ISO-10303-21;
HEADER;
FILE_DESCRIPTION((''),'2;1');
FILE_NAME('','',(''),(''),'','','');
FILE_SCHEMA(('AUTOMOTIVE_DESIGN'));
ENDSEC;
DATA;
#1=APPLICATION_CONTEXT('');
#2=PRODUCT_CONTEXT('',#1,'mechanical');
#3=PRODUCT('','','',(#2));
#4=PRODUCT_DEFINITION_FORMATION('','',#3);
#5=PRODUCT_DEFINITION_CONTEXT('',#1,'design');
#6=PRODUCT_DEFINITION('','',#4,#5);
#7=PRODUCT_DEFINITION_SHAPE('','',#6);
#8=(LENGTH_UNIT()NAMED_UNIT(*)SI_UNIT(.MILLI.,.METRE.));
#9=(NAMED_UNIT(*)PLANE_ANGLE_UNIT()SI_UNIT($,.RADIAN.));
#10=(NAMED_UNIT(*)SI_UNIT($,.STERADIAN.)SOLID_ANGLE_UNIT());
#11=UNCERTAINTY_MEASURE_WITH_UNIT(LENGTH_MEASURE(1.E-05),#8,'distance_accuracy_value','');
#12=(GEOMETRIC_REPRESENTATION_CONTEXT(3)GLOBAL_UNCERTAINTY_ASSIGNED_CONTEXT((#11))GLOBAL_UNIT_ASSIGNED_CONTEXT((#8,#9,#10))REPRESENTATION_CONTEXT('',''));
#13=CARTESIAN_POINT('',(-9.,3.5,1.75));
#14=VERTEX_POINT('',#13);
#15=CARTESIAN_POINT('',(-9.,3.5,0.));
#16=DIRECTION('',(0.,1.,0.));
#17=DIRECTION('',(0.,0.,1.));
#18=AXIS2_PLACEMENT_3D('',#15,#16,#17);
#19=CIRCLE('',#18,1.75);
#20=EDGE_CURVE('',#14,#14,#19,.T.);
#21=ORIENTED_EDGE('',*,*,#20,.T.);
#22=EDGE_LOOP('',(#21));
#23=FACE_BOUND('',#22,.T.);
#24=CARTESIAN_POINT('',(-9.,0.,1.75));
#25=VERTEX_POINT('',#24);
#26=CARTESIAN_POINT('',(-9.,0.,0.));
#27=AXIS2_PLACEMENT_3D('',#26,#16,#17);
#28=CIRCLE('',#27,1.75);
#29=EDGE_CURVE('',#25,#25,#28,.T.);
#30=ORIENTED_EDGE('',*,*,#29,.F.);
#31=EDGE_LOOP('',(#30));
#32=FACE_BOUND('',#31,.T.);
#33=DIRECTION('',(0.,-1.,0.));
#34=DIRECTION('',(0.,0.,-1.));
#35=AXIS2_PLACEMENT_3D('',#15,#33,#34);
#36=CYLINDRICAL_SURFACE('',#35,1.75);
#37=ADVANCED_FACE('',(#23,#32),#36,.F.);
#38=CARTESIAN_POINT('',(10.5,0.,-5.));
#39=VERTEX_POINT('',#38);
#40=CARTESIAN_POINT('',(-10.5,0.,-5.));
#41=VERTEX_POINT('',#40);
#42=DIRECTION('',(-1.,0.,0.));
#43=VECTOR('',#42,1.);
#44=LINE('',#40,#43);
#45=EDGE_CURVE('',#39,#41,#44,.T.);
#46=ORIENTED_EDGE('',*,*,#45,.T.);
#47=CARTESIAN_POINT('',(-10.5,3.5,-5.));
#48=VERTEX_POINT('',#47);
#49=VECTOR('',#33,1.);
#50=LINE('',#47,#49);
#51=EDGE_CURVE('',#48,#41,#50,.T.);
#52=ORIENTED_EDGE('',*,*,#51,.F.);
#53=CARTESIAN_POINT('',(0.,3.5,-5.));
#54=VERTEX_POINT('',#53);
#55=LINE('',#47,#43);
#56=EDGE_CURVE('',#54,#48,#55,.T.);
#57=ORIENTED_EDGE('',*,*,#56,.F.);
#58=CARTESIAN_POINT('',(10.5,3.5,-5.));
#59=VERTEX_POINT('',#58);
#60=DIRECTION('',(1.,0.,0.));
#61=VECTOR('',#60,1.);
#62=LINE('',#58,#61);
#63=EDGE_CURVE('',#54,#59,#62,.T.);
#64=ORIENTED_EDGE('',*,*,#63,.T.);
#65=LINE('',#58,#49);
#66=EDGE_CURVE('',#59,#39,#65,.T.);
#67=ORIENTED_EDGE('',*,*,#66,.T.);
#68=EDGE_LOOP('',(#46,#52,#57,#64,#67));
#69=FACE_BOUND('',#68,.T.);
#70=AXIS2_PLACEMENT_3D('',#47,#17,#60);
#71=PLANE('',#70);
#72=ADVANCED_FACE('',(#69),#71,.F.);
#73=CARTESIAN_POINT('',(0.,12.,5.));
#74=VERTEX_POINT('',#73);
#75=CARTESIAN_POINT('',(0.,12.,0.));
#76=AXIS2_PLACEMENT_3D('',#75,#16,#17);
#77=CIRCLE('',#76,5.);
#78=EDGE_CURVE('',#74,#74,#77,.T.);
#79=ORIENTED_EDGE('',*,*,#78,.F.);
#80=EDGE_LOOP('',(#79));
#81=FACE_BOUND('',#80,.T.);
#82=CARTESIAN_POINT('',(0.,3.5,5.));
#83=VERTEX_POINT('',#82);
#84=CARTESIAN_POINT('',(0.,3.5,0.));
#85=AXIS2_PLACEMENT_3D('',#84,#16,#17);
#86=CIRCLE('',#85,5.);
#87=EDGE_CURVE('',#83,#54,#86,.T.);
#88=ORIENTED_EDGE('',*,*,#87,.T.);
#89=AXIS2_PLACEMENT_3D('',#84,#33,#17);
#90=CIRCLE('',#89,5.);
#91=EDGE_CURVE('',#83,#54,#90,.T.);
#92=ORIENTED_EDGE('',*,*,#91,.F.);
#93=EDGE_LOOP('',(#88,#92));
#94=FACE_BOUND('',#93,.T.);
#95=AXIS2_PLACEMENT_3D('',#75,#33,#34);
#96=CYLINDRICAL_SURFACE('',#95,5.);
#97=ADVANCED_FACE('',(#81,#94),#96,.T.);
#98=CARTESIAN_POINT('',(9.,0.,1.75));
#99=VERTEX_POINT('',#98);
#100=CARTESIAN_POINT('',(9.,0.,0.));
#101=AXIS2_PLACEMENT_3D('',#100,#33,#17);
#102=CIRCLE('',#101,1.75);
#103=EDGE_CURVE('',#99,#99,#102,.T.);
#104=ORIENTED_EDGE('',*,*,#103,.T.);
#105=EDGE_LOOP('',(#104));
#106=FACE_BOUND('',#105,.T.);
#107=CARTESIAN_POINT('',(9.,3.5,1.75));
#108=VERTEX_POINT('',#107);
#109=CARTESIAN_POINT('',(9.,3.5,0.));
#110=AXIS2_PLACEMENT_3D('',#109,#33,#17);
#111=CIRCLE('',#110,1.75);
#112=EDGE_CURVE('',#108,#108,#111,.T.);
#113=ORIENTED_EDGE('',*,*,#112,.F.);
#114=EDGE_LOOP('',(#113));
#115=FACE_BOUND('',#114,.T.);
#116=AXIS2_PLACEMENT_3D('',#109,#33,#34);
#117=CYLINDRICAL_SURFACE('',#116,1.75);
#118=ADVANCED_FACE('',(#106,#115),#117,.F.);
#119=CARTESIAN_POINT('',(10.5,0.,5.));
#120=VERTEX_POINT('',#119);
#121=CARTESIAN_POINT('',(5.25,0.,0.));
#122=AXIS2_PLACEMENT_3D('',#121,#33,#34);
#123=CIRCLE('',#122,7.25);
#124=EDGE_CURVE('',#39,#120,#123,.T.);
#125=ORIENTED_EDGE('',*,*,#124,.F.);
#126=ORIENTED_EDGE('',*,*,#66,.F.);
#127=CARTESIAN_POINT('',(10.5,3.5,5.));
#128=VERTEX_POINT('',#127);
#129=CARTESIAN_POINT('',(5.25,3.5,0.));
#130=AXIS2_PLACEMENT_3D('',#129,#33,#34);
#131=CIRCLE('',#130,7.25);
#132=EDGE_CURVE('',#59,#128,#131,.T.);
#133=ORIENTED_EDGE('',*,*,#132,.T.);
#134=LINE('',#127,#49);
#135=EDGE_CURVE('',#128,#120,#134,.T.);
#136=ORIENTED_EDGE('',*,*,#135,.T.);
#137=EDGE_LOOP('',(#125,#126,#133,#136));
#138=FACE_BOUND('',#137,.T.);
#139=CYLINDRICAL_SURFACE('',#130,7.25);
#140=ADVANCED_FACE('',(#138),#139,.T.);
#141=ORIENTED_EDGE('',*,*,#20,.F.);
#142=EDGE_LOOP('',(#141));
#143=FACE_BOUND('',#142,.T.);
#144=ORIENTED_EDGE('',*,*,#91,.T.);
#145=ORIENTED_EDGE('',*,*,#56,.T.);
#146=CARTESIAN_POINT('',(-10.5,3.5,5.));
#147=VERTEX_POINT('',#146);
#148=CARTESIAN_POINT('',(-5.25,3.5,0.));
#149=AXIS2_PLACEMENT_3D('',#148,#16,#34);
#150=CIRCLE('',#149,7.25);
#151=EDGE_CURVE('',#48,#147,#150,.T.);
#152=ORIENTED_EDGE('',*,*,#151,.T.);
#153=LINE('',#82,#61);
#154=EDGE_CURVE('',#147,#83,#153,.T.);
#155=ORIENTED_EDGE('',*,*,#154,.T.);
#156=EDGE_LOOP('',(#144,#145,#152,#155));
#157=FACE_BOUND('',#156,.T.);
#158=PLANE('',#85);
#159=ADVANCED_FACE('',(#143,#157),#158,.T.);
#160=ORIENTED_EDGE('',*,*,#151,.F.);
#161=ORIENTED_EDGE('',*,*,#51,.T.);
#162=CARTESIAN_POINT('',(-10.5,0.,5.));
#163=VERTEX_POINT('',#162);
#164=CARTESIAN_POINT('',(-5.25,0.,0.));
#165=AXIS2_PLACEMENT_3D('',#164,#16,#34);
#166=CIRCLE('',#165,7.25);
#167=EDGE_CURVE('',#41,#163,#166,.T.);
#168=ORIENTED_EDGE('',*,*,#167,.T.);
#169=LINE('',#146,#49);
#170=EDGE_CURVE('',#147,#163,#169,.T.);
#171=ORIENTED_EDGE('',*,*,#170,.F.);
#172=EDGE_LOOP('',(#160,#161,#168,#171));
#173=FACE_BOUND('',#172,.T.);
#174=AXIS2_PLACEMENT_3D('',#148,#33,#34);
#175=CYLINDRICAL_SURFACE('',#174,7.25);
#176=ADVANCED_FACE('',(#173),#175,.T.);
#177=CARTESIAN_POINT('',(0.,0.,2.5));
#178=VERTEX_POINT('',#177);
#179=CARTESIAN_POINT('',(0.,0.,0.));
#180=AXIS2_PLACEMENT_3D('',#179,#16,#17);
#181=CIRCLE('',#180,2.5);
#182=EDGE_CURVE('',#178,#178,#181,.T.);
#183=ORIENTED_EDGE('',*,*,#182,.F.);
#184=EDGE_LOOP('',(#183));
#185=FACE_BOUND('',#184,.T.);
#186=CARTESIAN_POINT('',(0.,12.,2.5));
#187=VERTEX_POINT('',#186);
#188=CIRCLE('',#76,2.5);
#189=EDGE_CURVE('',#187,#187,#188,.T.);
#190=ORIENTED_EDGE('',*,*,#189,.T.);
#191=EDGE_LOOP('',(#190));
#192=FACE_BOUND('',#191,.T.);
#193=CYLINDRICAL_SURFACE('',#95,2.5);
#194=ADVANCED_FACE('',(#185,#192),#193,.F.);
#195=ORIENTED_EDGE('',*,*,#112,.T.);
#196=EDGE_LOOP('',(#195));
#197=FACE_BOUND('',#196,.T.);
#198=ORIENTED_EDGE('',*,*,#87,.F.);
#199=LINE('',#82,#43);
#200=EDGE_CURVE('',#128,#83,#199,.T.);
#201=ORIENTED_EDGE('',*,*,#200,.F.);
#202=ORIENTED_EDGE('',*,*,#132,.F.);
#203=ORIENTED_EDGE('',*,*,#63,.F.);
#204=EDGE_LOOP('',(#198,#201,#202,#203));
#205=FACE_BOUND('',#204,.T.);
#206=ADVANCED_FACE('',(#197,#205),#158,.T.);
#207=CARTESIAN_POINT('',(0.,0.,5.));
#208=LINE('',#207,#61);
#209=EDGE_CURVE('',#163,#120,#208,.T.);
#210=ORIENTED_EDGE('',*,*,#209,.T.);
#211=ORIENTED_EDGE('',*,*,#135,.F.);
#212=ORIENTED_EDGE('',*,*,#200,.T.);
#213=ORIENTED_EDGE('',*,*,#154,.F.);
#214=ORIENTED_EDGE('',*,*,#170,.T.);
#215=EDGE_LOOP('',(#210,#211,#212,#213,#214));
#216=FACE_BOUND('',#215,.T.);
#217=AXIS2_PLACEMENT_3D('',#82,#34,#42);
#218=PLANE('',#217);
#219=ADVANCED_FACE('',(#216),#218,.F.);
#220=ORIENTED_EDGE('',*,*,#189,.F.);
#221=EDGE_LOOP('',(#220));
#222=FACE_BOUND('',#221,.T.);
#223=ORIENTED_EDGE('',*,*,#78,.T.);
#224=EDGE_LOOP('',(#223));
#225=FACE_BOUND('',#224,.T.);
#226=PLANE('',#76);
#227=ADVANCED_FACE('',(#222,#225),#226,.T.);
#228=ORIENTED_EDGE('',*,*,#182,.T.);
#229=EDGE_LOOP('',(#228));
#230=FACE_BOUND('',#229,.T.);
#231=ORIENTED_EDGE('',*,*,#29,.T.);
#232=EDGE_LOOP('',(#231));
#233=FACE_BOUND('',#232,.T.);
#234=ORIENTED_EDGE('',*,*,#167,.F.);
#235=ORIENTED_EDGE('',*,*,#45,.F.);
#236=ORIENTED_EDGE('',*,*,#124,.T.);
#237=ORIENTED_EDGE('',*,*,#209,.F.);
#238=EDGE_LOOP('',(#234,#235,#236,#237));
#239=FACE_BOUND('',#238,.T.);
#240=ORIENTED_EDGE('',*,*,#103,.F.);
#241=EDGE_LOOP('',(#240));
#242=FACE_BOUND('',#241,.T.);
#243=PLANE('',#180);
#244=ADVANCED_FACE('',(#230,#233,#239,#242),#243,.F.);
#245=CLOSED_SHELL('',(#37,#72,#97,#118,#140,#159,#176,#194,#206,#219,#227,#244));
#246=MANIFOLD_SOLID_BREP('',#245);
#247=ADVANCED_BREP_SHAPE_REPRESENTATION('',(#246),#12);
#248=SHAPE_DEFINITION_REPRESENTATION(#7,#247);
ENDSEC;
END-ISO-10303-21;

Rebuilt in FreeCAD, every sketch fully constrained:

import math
import FreeCAD as App
import Part
import Sketcher
Q = App.Units.Quantity

doc = App.newDocument("Part")
body = doc.addObject("PartDesign::Body", "Body")

# Sketch on XZ plane
sketch1 = doc.addObject("Sketcher::SketchObject", "Sketch")
body.addObject(sketch1)
sketch1.AttachmentSupport = (doc.XZ_Plane, [""])
sketch1.MapMode = "FlatFace"
sketch1.addGeometry([
    Part.Circle(App.Vector(0, 0, 0), App.Vector(0, 0, 1), 5),
    Part.Circle(App.Vector(0, 0, 0), App.Vector(0, 0, 1), 2.5),
], False)
sketch1.addConstraint([
    Sketcher.Constraint("Coincident", 0, 3, -1, 1),
    Sketcher.Constraint("Coincident", 1, 3, -1, 1),
    Sketcher.Constraint("Diameter", 0, Q("10 mm")),
    Sketcher.Constraint("Diameter", 1, Q("5 mm")),
])
pad1 = doc.addObject("PartDesign::Pad", "Pad")
body.addObject(pad1)
pad1.Profile = sketch1
pad1.Length = 12
pad1.Reversed = True

# Sketch on XZ plane
sketch2 = doc.addObject("Sketcher::SketchObject", "Sketch001")
body.addObject(sketch2)
sketch2.AttachmentSupport = (doc.XZ_Plane, [""])
sketch2.MapMode = "FlatFace"
sketch2.addGeometry([
    Part.LineSegment(App.Vector(-10.5, 5, 0), App.Vector(0, 5, 0)),  # 0
    Part.ArcOfCircle(Part.Circle(App.Vector(0, 0, 0), App.Vector(0, 0, 1), 5), math.radians(90), math.radians(270)),  # 1
    Part.LineSegment(App.Vector(0, -5, 0), App.Vector(-10.5, -5, 0)),  # 2
    Part.ArcOfCircle(Part.Circle(App.Vector(-5.2, 0, 0), App.Vector(0, 0, 1), 7.2), math.radians(136), math.radians(224)),  # 3
    Part.Circle(App.Vector(-9, 0, 0), App.Vector(0, 0, 1), 1.8),  # 4
], False)
sketch2.addConstraint([
    Sketcher.Constraint("Tangent", 0, 2, 1, 1),
    Sketcher.Constraint("Tangent", 1, 2, 2, 1),
    Sketcher.Constraint("Coincident", 2, 2, 3, 2),
    Sketcher.Constraint("Coincident", 3, 1, 0, 1),
    Sketcher.Constraint("Horizontal", 0),
    Sketcher.Constraint("Horizontal", 2),
    Sketcher.Constraint("Coincident", 1, 3, -1, 1),
    Sketcher.Constraint("PointOnObject", 3, 3, -1),
    Sketcher.Constraint("PointOnObject", 4, 3, -1),
    Sketcher.Constraint("Radius", 1, Q("5 mm")),
    Sketcher.Constraint("Diameter", 4, Q("3.5 mm")),
    Sketcher.Constraint("Radius", 3, Q("7.25 mm")),
    Sketcher.Constraint("DistanceX", 0, 1, 0, 2, Q("10.5 mm")),
    Sketcher.Constraint("DistanceX", 4, 3, -1, 1, Q("9 mm")),
])
pad2 = doc.addObject("PartDesign::Pad", "Pad001")
body.addObject(pad2)
pad2.Profile = sketch2
pad2.Length = 3.5
pad2.Reversed = True
doc.recompute()

mirrored = doc.addObject("PartDesign::Mirrored", "Mirrored")
body.addObject(mirrored)
mirrored.Originals = [pad2]
mirrored.MirrorPlane = (doc.YZ_Plane, [""])
body.Tip = mirrored

doc.recompute()
